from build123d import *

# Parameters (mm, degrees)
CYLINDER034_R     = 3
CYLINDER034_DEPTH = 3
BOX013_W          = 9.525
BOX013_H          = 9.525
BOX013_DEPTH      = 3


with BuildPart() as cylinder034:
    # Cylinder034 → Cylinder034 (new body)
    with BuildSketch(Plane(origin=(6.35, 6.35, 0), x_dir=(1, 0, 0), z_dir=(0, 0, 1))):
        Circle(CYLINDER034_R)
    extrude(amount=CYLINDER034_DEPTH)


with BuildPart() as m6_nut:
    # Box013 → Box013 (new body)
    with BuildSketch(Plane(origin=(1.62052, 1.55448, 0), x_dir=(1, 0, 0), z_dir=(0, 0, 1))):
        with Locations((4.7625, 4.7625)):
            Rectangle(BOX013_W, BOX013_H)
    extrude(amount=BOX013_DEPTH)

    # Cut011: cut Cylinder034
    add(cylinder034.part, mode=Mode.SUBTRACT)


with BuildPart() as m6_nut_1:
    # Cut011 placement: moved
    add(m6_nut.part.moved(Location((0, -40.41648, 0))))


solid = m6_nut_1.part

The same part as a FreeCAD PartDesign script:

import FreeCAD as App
import Part
import Sketcher

V = App.Vector

doc = App.newDocument("Part")
params = doc.addObject("Spreadsheet::Sheet", "Params")
for row, (alias, value) in enumerate([
    ("sketch1_diameter", "6 mm"),
    ("pad1_length", "3 mm"),
    ("pad2_length", "3 mm"),
], start=1):
    params.set(f"A{row}", alias)
    params.set(f"B{row}", "=" + value)
    params.setAlias(f"B{row}", alias)

body = doc.addObject("PartDesign::Body", "Body")

# Sketch on XY plane
sketch1 = body.newObject("Sketcher::SketchObject", "Sketch")
sketch1.AttachmentSupport = (doc.getObject("XY_Plane"), [""])
sketch1.MapMode = "FlatFace"
sketch1.addGeometry(Part.Circle(V(6.3, 6.3, 0), V(0, 0, 1), 3), False)
sketch1.addConstraint(Sketcher.Constraint("Diameter", 0, 6.0))
sketch1.addConstraint(Sketcher.Constraint("DistanceX", -1, 1, 0, 3, 6.35))
sketch1.addConstraint(Sketcher.Constraint("DistanceY", -1, 1, 0, 3, 6.35))
sketch1.setExpression("Constraints[0]", "Params.sketch1_diameter")
pad1 = body.newObject("PartDesign::Pad", "Pad")
pad1.Profile = sketch1
pad1.setExpression("Length", "Params.pad1_length")
body2 = doc.addObject("PartDesign::Body", "Body001")

# Sketch on XY plane
sketch2 = body2.newObject("Sketcher::SketchObject", "Sketch001")
sketch2.AttachmentSupport = (doc.getObject("XY_Plane001"), [""])
sketch2.MapMode = "FlatFace"
sketch2.addGeometry(Part.LineSegment(V(2, 11, 0), V(2, 2, 0)), False)
sketch2.addGeometry(Part.LineSegment(V(2, 2, 0), V(11, 2, 0)), False)
sketch2.addGeometry(Part.LineSegment(V(11, 2, 0), V(11, 11, 0)), False)
sketch2.addGeometry(Part.LineSegment(V(11, 11, 0), V(2, 11, 0)), False)
sketch2.addConstraint(Sketcher.Constraint("Coincident", 0, 2, 1, 1))
sketch2.addConstraint(Sketcher.Constraint("Coincident", 1, 2, 2, 1))
sketch2.addConstraint(Sketcher.Constraint("Coincident", 2, 2, 3, 1))
sketch2.addConstraint(Sketcher.Constraint("Coincident", 3, 2, 0, 1))
sketch2.addConstraint(Sketcher.Constraint("Vertical", 0))
sketch2.addConstraint(Sketcher.Constraint("Horizontal", 1))
sketch2.addConstraint(Sketcher.Constraint("Vertical", 2))
sketch2.addConstraint(Sketcher.Constraint("Horizontal", 3))
sketch2.addConstraint(Sketcher.Constraint("Equal", 3, 0))
sketch2.addConstraint(Sketcher.Constraint("DistanceX", 1, 1, 1, 2, 9.525))
sketch2.addConstraint(Sketcher.Constraint("DistanceX", -1, 1, 0, 2, 1.62052))
sketch2.addConstraint(Sketcher.Constraint("DistanceY", -1, 1, 0, 2, 1.55448))
pad2 = body2.newObject("PartDesign::Pad", "Pad001")
pad2.Profile = sketch2
pad2.setExpression("Length", "Params.pad2_length")
doc.recompute()

boolean = body2.newObject("PartDesign::Boolean", "Boolean")
boolean.Type = "Cut"
boolean.addObjects([body])
body3 = doc.addObject("PartDesign::Body", "Body002")
doc.recompute()

body2.Placement = App.Placement(V(0, -40.41648, 0), App.Rotation(V(0, 0, 1), 0))
boolean2 = body3.newObject("PartDesign::Boolean", "Boolean001")
boolean2.Type = "Fuse"
boolean2.addObjects([body2])

doc.recompute()
